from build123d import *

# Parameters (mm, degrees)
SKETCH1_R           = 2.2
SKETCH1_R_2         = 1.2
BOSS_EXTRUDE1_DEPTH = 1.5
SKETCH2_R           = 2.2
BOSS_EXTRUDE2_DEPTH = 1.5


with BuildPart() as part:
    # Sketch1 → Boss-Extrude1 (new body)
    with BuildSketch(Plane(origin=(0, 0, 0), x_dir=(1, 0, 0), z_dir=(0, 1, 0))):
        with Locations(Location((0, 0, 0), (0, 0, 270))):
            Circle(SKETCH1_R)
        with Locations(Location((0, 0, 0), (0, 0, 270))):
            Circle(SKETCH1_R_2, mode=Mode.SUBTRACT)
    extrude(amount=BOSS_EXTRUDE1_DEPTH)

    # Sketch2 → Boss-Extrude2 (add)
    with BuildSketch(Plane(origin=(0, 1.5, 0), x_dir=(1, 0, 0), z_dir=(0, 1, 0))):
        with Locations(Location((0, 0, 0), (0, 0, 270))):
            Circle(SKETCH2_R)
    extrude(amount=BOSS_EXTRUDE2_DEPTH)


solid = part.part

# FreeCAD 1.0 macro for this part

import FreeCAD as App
import Part
import Sketcher

V = App.Vector
Q = App.Units.Quantity

doc = App.newDocument("Part")
params = doc.addObject("Spreadsheet::Sheet", "Params")
for row, (alias, value) in enumerate([
    ("sketch1_diameter", "4.4 mm"),
    ("sketch1_diameter2", "2.4 mm"),
    ("pad1_length", "1.5 mm"),
    ("sketch2_diameter", "4.4 mm"),
    ("pad2_length", "1.5 mm"),
], start=1):
    params.set(f"A{row}", alias)
    params.set(f"B{row}", "=" + value)
    params.setAlias(f"B{row}", alias)

body = doc.addObject("PartDesign::Body", "Body")

# Sketch on XZ plane
sketch1 = body.newObject("Sketcher::SketchObject", "Sketch")
sketch1.AttachmentSupport = (doc.getObject("XZ_Plane"), [""])
sketch1.MapMode = "FlatFace"
sketch1.addGeometry([
    Part.Circle(V(0, 0, 0), V(0, 0, 1), 2.2),
    Part.Circle(V(0, 0, 0), V(0, 0, 1), 1.2),
], False)
sketch1.addConstraint([
    Sketcher.Constraint("Coincident", 0, 3, -1, 1),
    Sketcher.Constraint("Coincident", 1, 3, -1, 1),
    Sketcher.Constraint("Diameter", 0, Q("4.4 mm")),
    Sketcher.Constraint("Diameter", 1, Q("2.4 mm")),
])
sketch1.setExpression("Constraints[2]", "Params.sketch1_diameter")
sketch1.setExpression("Constraints[3]", "Params.sketch1_diameter2")
pad1 = body.newObject("PartDesign::Pad", "Pad")
pad1.Profile = sketch1
pad1.setExpression("Length", "Params.pad1_length")
pad1.Reversed = True

# Sketch on XZ plane
sketch2 = body.newObject("Sketcher::SketchObject", "Sketch001")
sketch2.AttachmentSupport = (doc.getObject("XZ_Plane"), [""])
sketch2.MapMode = "FlatFace"
sketch2.AttachmentOffset = App.Placement(V(0, 0, -1.5), App.Rotation())
sketch2.addGeometry(Part.Circle(V(0, 0, 0), V(0, 0, 1), 2.2), False)
sketch2.addConstraint([
    Sketcher.Constraint("Coincident", 0, 3, -1, 1),
    Sketcher.Constraint("Diameter", 0, Q("4.4 mm")),
])
sketch2.setExpression("Constraints[1]", "Params.sketch2_diameter")
pad2 = body.newObject("PartDesign::Pad", "Pad001")
pad2.Profile = sketch2
pad2.setExpression("Length", "Params.pad2_length")
pad2.Reversed = True

doc.recompute()
